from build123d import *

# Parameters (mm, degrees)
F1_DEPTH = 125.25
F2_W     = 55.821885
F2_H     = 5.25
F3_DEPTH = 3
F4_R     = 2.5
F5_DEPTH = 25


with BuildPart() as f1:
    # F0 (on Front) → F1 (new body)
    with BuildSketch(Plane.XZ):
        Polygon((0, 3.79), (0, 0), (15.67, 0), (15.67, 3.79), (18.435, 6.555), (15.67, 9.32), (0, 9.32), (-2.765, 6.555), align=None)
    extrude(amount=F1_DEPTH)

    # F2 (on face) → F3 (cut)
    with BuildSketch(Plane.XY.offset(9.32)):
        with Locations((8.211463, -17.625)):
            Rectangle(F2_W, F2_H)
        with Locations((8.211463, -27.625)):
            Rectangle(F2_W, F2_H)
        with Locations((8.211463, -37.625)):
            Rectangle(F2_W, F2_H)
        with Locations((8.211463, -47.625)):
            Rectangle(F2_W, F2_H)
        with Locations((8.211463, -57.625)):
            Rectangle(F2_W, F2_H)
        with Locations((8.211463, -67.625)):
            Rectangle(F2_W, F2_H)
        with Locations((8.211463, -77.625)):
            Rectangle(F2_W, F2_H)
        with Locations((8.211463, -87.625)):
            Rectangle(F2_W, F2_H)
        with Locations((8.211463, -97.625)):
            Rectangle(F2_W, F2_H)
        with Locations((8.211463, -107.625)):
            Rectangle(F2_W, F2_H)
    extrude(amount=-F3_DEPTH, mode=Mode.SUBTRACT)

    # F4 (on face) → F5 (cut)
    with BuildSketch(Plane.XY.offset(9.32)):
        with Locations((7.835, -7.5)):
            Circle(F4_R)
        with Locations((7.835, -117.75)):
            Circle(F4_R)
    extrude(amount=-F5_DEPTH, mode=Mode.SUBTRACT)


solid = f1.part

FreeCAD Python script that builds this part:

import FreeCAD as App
import Part
import Sketcher

V = App.Vector

doc = App.newDocument("Part")
body = doc.addObject("PartDesign::Body", "Body")

sketch1 = doc.addObject("Sketcher::SketchObject", "Sketch")
body.addObject(sketch1)
sketch1.AttachmentSupport = (doc.XZ_Plane, [""])
sketch1.MapMode = "FlatFace"
sketch1.addGeometry(Part.LineSegment(V(0, 3.8, 0), V(0, 0, 0)), False)
sketch1.addGeometry(Part.LineSegment(V(0, 0, 0), V(15.7, 0, 0)), False)
sketch1.addGeometry(Part.LineSegment(V(15.7, 0, 0), V(15.7, 3.8, 0)), False)
sketch1.addGeometry(Part.LineSegment(V(15.7, 3.8, 0), V(18.4, 6.6, 0)), False)
sketch1.addGeometry(Part.LineSegment(V(18.4, 6.6, 0), V(15.7, 9.3, 0)), False)
sketch1.addGeometry(Part.LineSegment(V(15.7, 9.3, 0), V(0, 9.3, 0)), False)
sketch1.addGeometry(Part.LineSegment(V(0, 9.3, 0), V(-2.8, 6.6, 0)), False)
sketch1.addGeometry(Part.LineSegment(V(-2.8, 6.6, 0), V(0, 3.8, 0)), False)
sketch1.addConstraint(Sketcher.Constraint("Coincident", 0, 2, 1, 1))
sketch1.addConstraint(Sketcher.Constraint("Coincident", 1, 2, 2, 1))
sketch1.addConstraint(Sketcher.Constraint("Coincident", 2, 2, 3, 1))
sketch1.addConstraint(Sketcher.Constraint("Coincident", 3, 2, 4, 1))
sketch1.addConstraint(Sketcher.Constraint("Coincident", 4, 2, 5, 1))
sketch1.addConstraint(Sketcher.Constraint("Coincident", 5, 2, 6, 1))
sketch1.addConstraint(Sketcher.Constraint("Coincident", 6, 2, 7, 1))
sketch1.addConstraint(Sketcher.Constraint("Coincident", 7, 2, 0, 1))
sketch1.addConstraint(Sketcher.Constraint("Vertical", 0))
sketch1.addConstraint(Sketcher.Constraint("Horizontal", 1))
sketch1.addConstraint(Sketcher.Constraint("Vertical", 2))
sketch1.addConstraint(Sketcher.Constraint("Horizontal", 5))
sketch1.addConstraint(Sketcher.Constraint("Coincident", 0, 2, -1, 1))
sketch1.addConstraint(Sketcher.Constraint("PointOnObject", 5, 2, -2))
sketch1.addConstraint(Sketcher.Constraint("Perpendicular", 3, 4))
sketch1.addConstraint(Sketcher.Constraint("Perpendicular", 4, 6))
sketch1.addConstraint(Sketcher.Constraint("Perpendicular", 6, 7))
sketch1.addConstraint(Sketcher.Constraint("Horizontal", 3, 2, 6, 2))
sketch1.addConstraint(Sketcher.Constraint("Horizontal", 2, 2, 7, 2))
sketch1.addConstraint(Sketcher.Constraint("Vertical", 2, 2, 4, 2))
sketch1.addConstraint(Sketcher.Constraint("DistanceX", 1, 1, 1, 2, 15.67))
sketch1.addConstraint(Sketcher.Constraint("DistanceY", 0, 2, 0, 1, 3.79))
sketch1.addConstraint(Sketcher.Constraint("DistanceY", -1, 1, 4, 2, 9.32))
pad1 = doc.addObject("PartDesign::Pad", "Pad")
body.addObject(pad1)
pad1.Profile = sketch1
pad1.Length = 125.25

sketch2 = doc.addObject("Sketcher::SketchObject", "Sketch001")
body.addObject(sketch2)
sketch2.AttachmentSupport = (doc.XY_Plane, [""])
sketch2.MapMode = "FlatFace"
sketch2.AttachmentOffset = App.Placement(V(0, 0, 9.32), App.Rotation())
sketch2.addGeometry(Part.LineSegment(V(-20, -15, 0), V(-20, -20, 0)), False)
sketch2.addGeometry(Part.LineSegment(V(-20, -20, 0), V(36, -20, 0)), False)
sketch2.addGeometry(Part.LineSegment(V(36, -20, 0), V(36, -15, 0)), False)
sketch2.addGeometry(Part.LineSegment(V(36, -15, 0), V(-20, -15, 0)), False)
sketch2.addGeometry(Part.LineSegment(V(-20, -25, 0), V(-20, -30, 0)), False)
sketch2.addGeometry(Part.LineSegment(V(-20, -30, 0), V(36, -30, 0)), False)
sketch2.addGeometry(Part.LineSegment(V(36, -30, 0), V(36, -25, 0)), False)
sketch2.addGeometry(Part.LineSegment(V(36, -25, 0), V(-20, -25, 0)), False)
sketch2.addGeometry(Part.LineSegment(V(-20, -35, 0), V(-20, -40, 0)), False)
sketch2.addGeometry(Part.LineSegment(V(-20, -40, 0), V(36, -40, 0)), False)
sketch2.addGeometry(Part.LineSegment(V(36, -40, 0), V(36, -35, 0)), False)
sketch2.addGeometry(Part.LineSegment(V(36, -35, 0), V(-20, -35, 0)), False)
sketch2.addGeometry(Part.LineSegment(V(-20, -45, 0), V(-20, -50, 0)), False)
sketch2.addGeometry(Part.LineSegment(V(-20, -50, 0), V(36, -50, 0)), False)
sketch2.addGeometry(Part.LineSegment(V(36, -50, 0), V(36, -45, 0)), False)
sketch2.addGeometry(Part.LineSegment(V(36, -45, 0), V(-20, -45, 0)), False)
sketch2.addGeometry(Part.LineSegment(V(-20, -55, 0), V(-20, -60, 0)), False)
sketch2.addGeometry(Part.LineSegment(V(-20, -60, 0), V(36, -60, 0)), False)
sketch2.addGeometry(Part.LineSegment(V(36, -60, 0), V(36, -55, 0)), False)
sketch2.addGeometry(Part.LineSegment(V(36, -55, 0), V(-20, -55, 0)), False)
sketch2.addGeometry(Part.LineSegment(V(-20, -65, 0), V(-20, -70, 0)), False)
sketch2.addGeometry(Part.LineSegment(V(-20, -70, 0), V(36, -70, 0)), False)
sketch2.addGeometry(Part.LineSegment(V(36, -70, 0), V(36, -65, 0)), False)
sketch2.addGeometry(Part.LineSegment(V(36, -65, 0), V(-20, -65, 0)), False)
sketch2.addGeometry(Part.LineSegment(V(-20, -75, 0), V(-20, -80, 0)), False)
sketch2.addGeometry(Part.LineSegment(V(-20, -80, 0), V(36, -80, 0)), False)
sketch2.addGeometry(Part.LineSegment(V(36, -80, 0), V(36, -75, 0)), False)
sketch2.addGeometry(Part.LineSegment(V(36, -75, 0), V(-20, -75, 0)), False)
sketch2.addGeometry(Part.LineSegment(V(-20, -85, 0), V(-20, -90, 0)), False)
sketch2.addGeometry(Part.LineSegment(V(-20, -90, 0), V(36, -90, 0)), False)
sketch2.addGeometry(Part.LineSegment(V(36, -90, 0), V(36, -85, 0)), False)
sketch2.addGeometry(Part.LineSegment(V(36, -85, 0), V(-20, -85, 0)), False)
sketch2.addGeometry(Part.LineSegment(V(-20, -95, 0), V(-20, -100, 0)), False)
sketch2.addGeometry(Part.LineSegment(V(-20, -100, 0), V(36, -100, 0)), False)
sketch2.addGeometry(Part.LineSegment(V(36, -100, 0), V(36, -95, 0)), False)
sketch2.addGeometry(Part.LineSegment(V(36, -95, 0), V(-20, -95, 0)), False)
sketch2.addGeometry(Part.LineSegment(V(-20, -105, 0), V(-20, -110, 0)), False)
sketch2.addGeometry(Part.LineSegment(V(-20, -110, 0), V(36, -110, 0)), False)
sketch2.addGeometry(Part.LineSegment(V(36, -110, 0), V(36, -105, 0)), False)
sketch2.addGeometry(Part.LineSegment(V(36, -105, 0), V(-20, -105, 0)), False)
sketch2.addConstraint(Sketcher.Constraint("Coincident", 0, 2, 1, 1))
sketch2.addConstraint(Sketcher.Constraint("Coincident", 1, 2, 2, 1))
sketch2.addConstraint(Sketcher.Constraint("Coincident", 2, 2, 3, 1))
sketch2.addConstraint(Sketcher.Constraint("Coincident", 3, 2, 0, 1))
sketch2.addConstraint(Sketcher.Constraint("Coincident", 4, 2, 5, 1))
sketch2.addConstraint(Sketcher.Constraint("Coincident", 5, 2, 6, 1))
sketch2.addConstraint(Sketcher.Constraint("Coincident", 6, 2, 7, 1))
sketch2.addConstraint(Sketcher.Constraint("Coincident", 7, 2, 4, 1))
sketch2.addConstraint(Sketcher.Constraint("Coincident", 8, 2, 9, 1))
sketch2.addConstraint(Sketcher.Constraint("Coincident", 9, 2, 10, 1))
sketch2.addConstraint(Sketcher.Constraint("Coincident", 10, 2, 11, 1))
sketch2.addConstraint(Sketcher.Constraint("Coincident", 11, 2, 8, 1))
sketch2.addConstraint(Sketcher.Constraint("Coincident", 12, 2, 13, 1))
sketch2.addConstraint(Sketcher.Constraint("Coincident", 13, 2, 14, 1))
sketch2.addConstraint(Sketcher.Constraint("Coincident", 14, 2, 15, 1))
sketch2.addConstraint(Sketcher.Constraint("Coincident", 15, 2, 12, 1))
sketch2.addConstraint(Sketcher.Constraint("Coincident", 16, 2, 17, 1))
sketch2.addConstraint(Sketcher.Constraint("Coincident", 17, 2, 18, 1))
sketch2.addConstraint(Sketcher.Constraint("Coincident", 18, 2, 19, 1))
sketch2.addConstraint(Sketcher.Constraint("Coincident", 19, 2, 16, 1))
sketch2.addConstraint(Sketcher.Constraint("Coincident", 20, 2, 21, 1))
sketch2.addConstraint(Sketcher.Constraint("Coincident", 21, 2, 22, 1))
sketch2.addConstraint(Sketcher.Constraint("Coincident", 22, 2, 23, 1))
sketch2.addConstraint(Sketcher.Constraint("Coincident", 23, 2, 20, 1))
sketch2.addConstraint(Sketcher.Constraint("Coincident", 24, 2, 25, 1))
sketch2.addConstraint(Sketcher.Constraint("Coincident", 25, 2, 26, 1))
sketch2.addConstraint(Sketcher.Constraint("Coincident", 26, 2, 27, 1))
sketch2.addConstraint(Sketcher.Constraint("Coincident", 27, 2, 24, 1))
sketch2.addConstraint(Sketcher.Constraint("Coincident", 28, 2, 29, 1))
sketch2.addConstraint(Sketcher.Constraint("Coincident", 29, 2, 30, 1))
sketch2.addConstraint(Sketcher.Constraint("Coincident", 30, 2, 31, 1))
sketch2.addConstraint(Sketcher.Constraint("Coincident", 31, 2, 28, 1))
sketch2.addConstraint(Sketcher.Constraint("Coincident", 32, 2, 33, 1))
sketch2.addConstraint(Sketcher.Constraint("Coincident", 33, 2, 34, 1))
sketch2.addConstraint(Sketcher.Constraint("Coincident", 34, 2, 35, 1))
sketch2.addConstraint(Sketcher.Constraint("Coincident", 35, 2, 32, 1))
sketch2.addConstraint(Sketcher.Constraint("Coincident", 36, 2, 37, 1))
sketch2.addConstraint(Sketcher.Constraint("Coincident", 37, 2, 38, 1))
sketch2.addConstraint(Sketcher.Constraint("Coincident", 38, 2, 39, 1))
sketch2.addConstraint(Sketcher.Constraint("Coincident", 39, 2, 36, 1))
sketch2.addConstraint(Sketcher.Constraint("Vertical", 0))
sketch2.addConstraint(Sketcher.Constraint("Horizontal", 1))
sketch2.addConstraint(Sketcher.Constraint("Vertical", 2))
sketch2.addConstraint(Sketcher.Constraint("Horizontal", 3))
sketch2.addConstraint(Sketcher.Constraint("Vertical", 4))
sketch2.addConstraint(Sketcher.Constraint("Horizontal", 5))
sketch2.addConstraint(Sketcher.Constraint("Vertical", 6))
sketch2.addConstraint(Sketcher.Constraint("Horizontal", 7))
sketch2.addConstraint(Sketcher.Constraint("Vertical", 8))
sketch2.addConstraint(Sketcher.Constraint("Horizontal", 9))
sketch2.addConstraint(Sketcher.Constraint("Vertical", 10))
sketch2.addConstraint(Sketcher.Constraint("Horizontal", 11))
sketch2.addConstraint(Sketcher.Constraint("Vertical", 12))
sketch2.addConstraint(Sketcher.Constraint("Horizontal", 13))
sketch2.addConstraint(Sketcher.Constraint("Vertical", 14))
sketch2.addConstraint(Sketcher.Constraint("Horizontal", 15))
sketch2.addConstraint(Sketcher.Constraint("Vertical", 16))
sketch2.addConstraint(Sketcher.Constraint("Horizontal", 17))
sketch2.addConstraint(Sketcher.Constraint("Vertical", 18))
sketch2.addConstraint(Sketcher.Constraint("Horizontal", 19))
sketch2.addConstraint(Sketcher.Constraint("Vertical", 20))
sketch2.addConstraint(Sketcher.Constraint("Horizontal", 21))
sketch2.addConstraint(Sketcher.Constraint("Vertical", 22))
sketch2.addConstraint(Sketcher.Constraint("Horizontal", 23))
sketch2.addConstraint(Sketcher.Constraint("Vertical", 24))
sketch2.addConstraint(Sketcher.Constraint("Horizontal", 25))
sketch2.addConstraint(Sketcher.Constraint("Vertical", 26))
sketch2.addConstraint(Sketcher.Constraint("Horizontal", 27))
sketch2.addConstraint(Sketcher.Constraint("Vertical", 28))
sketch2.addConstraint(Sketcher.Constraint("Horizontal", 29))
sketch2.addConstraint(Sketcher.Constraint("Vertical", 30))
sketch2.addConstraint(Sketcher.Constraint("Horizontal", 31))
sketch2.addConstraint(Sketcher.Constraint("Vertical", 32))
sketch2.addConstraint(Sketcher.Constraint("Horizontal", 33))
sketch2.addConstraint(Sketcher.Constraint("Vertical", 34))
sketch2.addConstraint(Sketcher.Constraint("Horizontal", 35))
sketch2.addConstraint(Sketcher.Constraint("Vertical", 36))
sketch2.addConstraint(Sketcher.Constraint("Horizontal", 37))
sketch2.addConstraint(Sketcher.Constraint("Vertical", 38))
sketch2.addConstraint(Sketcher.Constraint("Horizontal", 39))
sketch2.addConstraint(Sketcher.Constraint("Vertical", 3, 2, 4, 2))
sketch2.addConstraint(Sketcher.Constraint("Vertical", 2, 2, 5, 2))
sketch2.addConstraint(Sketcher.Constraint("Vertical", 7, 2, 8, 2))
sketch2.addConstraint(Sketcher.Constraint("Vertical", 6, 2, 9, 2))
sketch2.addConstraint(Sketcher.Constraint("Vertical", 11, 2, 12, 2))
sketch2.addConstraint(Sketcher.Constraint("Vertical", 10, 2, 13, 2))
sketch2.addConstraint(Sketcher.Constraint("Vertical", 15, 2, 16, 2))
sketch2.addConstraint(Sketcher.Constraint("Vertical", 14, 2, 17, 2))
sketch2.addConstraint(Sketcher.Constraint("Vertical", 19, 2, 20, 2))
sketch2.addConstraint(Sketcher.Constraint("Vertical", 18, 2, 21, 2))
sketch2.addConstraint(Sketcher.Constraint("Vertical", 23, 2, 24, 2))
sketch2.addConstraint(Sketcher.Constraint("Vertical", 22, 2, 25, 2))
sketch2.addConstraint(Sketcher.Constraint("Vertical", 27, 2, 28, 2))
sketch2.addConstraint(Sketcher.Constraint("Vertical", 26, 2, 29, 2))
sketch2.addConstraint(Sketcher.Constraint("Vertical", 31, 2, 32, 2))
sketch2.addConstraint(Sketcher.Constraint("Vertical", 30, 2, 33, 2))
sketch2.addConstraint(Sketcher.Constraint("Vertical", 35, 2, 36, 2))
sketch2.addConstraint(Sketcher.Constraint("Vertical", 34, 2, 37, 2))
sketch2.addConstraint(Sketcher.Constraint("Equal", 2, 4))
sketch2.addConstraint(Sketcher.Constraint("Equal", 6, 8))
sketch2.addConstraint(Sketcher.Constraint("Equal", 10, 12))
sketch2.addConstraint(Sketcher.Constraint("Equal", 14, 16))
sketch2.addConstraint(Sketcher.Constraint("Equal", 18, 20))
sketch2.addConstraint(Sketcher.Constraint("Equal", 22, 24))
sketch2.addConstraint(Sketcher.Constraint("Equal", 26, 28))
sketch2.addConstraint(Sketcher.Constraint("Equal", 30, 32))
sketch2.addConstraint(Sketcher.Constraint("Equal", 34, 36))
sketch2.addConstraint(Sketcher.Constraint("DistanceY", 2, 2, -1, 1, 15.0))
sketch2.addConstraint(Sketcher.Constraint("DistanceY", 6, 2, -1, 1, 25.0))
sketch2.addConstraint(Sketcher.Constraint("DistanceY", 10, 2, -1, 1, 35.0))
sketch2.addConstraint(Sketcher.Constraint("DistanceY", 14, 2, -1, 1, 45.0))
sketch2.addConstraint(Sketcher.Constraint("DistanceY", 18, 2, -1, 1, 55.0))
sketch2.addConstraint(Sketcher.Constraint("DistanceY", 22, 2, -1, 1, 65.0))
sketch2.addConstraint(Sketcher.Constraint("DistanceY", 26, 2, -1, 1, 75.0))
sketch2.addConstraint(Sketcher.Constraint("DistanceY", 30, 2, -1, 1, 85.0))
sketch2.addConstraint(Sketcher.Constraint("DistanceY", 34, 2, -1, 1, 95.0))
sketch2.addConstraint(Sketcher.Constraint("DistanceY", 38, 2, -1, 1, 105.0))
sketch2.addConstraint(Sketcher.Constraint("DistanceY", 0, 2, 0, 1, 5.25))
sketch2.addConstraint(Sketcher.Constraint("DistanceX", 1, 1, 1, 2, 55.821885))
sketch2.addConstraint(Sketcher.Constraint("DistanceX", 0, 2, -1, 1, 19.699479))
pocket1 = doc.addObject("PartDesign::Pocket", "Pocket")
body.addObject(pocket1)
pocket1.Profile = sketch2
pocket1.Length = 3

sketch3 = doc.addObject("Sketcher::SketchObject", "Sketch002")
body.addObject(sketch3)
sketch3.AttachmentSupport = (doc.XY_Plane, [""])
sketch3.MapMode = "FlatFace"
sketch3.AttachmentOffset = App.Placement(V(0, 0, 9.32), App.Rotation())
sketch3.addGeometry(Part.Circle(V(7.8, -7.5, 0), V(0, 0, 1), 2.5), False)
sketch3.addGeometry(Part.Circle(V(7.8, -117.8, 0), V(0, 0, 1), 2.5), False)
sketch3.addConstraint(Sketcher.Constraint("Equal", 0, 1))
sketch3.addConstraint(Sketcher.Constraint("Vertical", 0, 3, 1, 3))
sketch3.addConstraint(Sketcher.Constraint("Diameter", 0, 5.0))
sketch3.addConstraint(Sketcher.Constraint("DistanceY", 0, 3, -1, 1, 7.5))
sketch3.addConstraint(Sketcher.Constraint("DistanceY", 1, 3, -1, 1, 117.75))
sketch3.addConstraint(Sketcher.Constraint("DistanceX", -1, 1, 0, 3, 7.835))
pocket2 = doc.addObject("PartDesign::Pocket", "Pocket001")
body.addObject(pocket2)
pocket2.Profile = sketch3
pocket2.Length = 25

doc.recompute()
